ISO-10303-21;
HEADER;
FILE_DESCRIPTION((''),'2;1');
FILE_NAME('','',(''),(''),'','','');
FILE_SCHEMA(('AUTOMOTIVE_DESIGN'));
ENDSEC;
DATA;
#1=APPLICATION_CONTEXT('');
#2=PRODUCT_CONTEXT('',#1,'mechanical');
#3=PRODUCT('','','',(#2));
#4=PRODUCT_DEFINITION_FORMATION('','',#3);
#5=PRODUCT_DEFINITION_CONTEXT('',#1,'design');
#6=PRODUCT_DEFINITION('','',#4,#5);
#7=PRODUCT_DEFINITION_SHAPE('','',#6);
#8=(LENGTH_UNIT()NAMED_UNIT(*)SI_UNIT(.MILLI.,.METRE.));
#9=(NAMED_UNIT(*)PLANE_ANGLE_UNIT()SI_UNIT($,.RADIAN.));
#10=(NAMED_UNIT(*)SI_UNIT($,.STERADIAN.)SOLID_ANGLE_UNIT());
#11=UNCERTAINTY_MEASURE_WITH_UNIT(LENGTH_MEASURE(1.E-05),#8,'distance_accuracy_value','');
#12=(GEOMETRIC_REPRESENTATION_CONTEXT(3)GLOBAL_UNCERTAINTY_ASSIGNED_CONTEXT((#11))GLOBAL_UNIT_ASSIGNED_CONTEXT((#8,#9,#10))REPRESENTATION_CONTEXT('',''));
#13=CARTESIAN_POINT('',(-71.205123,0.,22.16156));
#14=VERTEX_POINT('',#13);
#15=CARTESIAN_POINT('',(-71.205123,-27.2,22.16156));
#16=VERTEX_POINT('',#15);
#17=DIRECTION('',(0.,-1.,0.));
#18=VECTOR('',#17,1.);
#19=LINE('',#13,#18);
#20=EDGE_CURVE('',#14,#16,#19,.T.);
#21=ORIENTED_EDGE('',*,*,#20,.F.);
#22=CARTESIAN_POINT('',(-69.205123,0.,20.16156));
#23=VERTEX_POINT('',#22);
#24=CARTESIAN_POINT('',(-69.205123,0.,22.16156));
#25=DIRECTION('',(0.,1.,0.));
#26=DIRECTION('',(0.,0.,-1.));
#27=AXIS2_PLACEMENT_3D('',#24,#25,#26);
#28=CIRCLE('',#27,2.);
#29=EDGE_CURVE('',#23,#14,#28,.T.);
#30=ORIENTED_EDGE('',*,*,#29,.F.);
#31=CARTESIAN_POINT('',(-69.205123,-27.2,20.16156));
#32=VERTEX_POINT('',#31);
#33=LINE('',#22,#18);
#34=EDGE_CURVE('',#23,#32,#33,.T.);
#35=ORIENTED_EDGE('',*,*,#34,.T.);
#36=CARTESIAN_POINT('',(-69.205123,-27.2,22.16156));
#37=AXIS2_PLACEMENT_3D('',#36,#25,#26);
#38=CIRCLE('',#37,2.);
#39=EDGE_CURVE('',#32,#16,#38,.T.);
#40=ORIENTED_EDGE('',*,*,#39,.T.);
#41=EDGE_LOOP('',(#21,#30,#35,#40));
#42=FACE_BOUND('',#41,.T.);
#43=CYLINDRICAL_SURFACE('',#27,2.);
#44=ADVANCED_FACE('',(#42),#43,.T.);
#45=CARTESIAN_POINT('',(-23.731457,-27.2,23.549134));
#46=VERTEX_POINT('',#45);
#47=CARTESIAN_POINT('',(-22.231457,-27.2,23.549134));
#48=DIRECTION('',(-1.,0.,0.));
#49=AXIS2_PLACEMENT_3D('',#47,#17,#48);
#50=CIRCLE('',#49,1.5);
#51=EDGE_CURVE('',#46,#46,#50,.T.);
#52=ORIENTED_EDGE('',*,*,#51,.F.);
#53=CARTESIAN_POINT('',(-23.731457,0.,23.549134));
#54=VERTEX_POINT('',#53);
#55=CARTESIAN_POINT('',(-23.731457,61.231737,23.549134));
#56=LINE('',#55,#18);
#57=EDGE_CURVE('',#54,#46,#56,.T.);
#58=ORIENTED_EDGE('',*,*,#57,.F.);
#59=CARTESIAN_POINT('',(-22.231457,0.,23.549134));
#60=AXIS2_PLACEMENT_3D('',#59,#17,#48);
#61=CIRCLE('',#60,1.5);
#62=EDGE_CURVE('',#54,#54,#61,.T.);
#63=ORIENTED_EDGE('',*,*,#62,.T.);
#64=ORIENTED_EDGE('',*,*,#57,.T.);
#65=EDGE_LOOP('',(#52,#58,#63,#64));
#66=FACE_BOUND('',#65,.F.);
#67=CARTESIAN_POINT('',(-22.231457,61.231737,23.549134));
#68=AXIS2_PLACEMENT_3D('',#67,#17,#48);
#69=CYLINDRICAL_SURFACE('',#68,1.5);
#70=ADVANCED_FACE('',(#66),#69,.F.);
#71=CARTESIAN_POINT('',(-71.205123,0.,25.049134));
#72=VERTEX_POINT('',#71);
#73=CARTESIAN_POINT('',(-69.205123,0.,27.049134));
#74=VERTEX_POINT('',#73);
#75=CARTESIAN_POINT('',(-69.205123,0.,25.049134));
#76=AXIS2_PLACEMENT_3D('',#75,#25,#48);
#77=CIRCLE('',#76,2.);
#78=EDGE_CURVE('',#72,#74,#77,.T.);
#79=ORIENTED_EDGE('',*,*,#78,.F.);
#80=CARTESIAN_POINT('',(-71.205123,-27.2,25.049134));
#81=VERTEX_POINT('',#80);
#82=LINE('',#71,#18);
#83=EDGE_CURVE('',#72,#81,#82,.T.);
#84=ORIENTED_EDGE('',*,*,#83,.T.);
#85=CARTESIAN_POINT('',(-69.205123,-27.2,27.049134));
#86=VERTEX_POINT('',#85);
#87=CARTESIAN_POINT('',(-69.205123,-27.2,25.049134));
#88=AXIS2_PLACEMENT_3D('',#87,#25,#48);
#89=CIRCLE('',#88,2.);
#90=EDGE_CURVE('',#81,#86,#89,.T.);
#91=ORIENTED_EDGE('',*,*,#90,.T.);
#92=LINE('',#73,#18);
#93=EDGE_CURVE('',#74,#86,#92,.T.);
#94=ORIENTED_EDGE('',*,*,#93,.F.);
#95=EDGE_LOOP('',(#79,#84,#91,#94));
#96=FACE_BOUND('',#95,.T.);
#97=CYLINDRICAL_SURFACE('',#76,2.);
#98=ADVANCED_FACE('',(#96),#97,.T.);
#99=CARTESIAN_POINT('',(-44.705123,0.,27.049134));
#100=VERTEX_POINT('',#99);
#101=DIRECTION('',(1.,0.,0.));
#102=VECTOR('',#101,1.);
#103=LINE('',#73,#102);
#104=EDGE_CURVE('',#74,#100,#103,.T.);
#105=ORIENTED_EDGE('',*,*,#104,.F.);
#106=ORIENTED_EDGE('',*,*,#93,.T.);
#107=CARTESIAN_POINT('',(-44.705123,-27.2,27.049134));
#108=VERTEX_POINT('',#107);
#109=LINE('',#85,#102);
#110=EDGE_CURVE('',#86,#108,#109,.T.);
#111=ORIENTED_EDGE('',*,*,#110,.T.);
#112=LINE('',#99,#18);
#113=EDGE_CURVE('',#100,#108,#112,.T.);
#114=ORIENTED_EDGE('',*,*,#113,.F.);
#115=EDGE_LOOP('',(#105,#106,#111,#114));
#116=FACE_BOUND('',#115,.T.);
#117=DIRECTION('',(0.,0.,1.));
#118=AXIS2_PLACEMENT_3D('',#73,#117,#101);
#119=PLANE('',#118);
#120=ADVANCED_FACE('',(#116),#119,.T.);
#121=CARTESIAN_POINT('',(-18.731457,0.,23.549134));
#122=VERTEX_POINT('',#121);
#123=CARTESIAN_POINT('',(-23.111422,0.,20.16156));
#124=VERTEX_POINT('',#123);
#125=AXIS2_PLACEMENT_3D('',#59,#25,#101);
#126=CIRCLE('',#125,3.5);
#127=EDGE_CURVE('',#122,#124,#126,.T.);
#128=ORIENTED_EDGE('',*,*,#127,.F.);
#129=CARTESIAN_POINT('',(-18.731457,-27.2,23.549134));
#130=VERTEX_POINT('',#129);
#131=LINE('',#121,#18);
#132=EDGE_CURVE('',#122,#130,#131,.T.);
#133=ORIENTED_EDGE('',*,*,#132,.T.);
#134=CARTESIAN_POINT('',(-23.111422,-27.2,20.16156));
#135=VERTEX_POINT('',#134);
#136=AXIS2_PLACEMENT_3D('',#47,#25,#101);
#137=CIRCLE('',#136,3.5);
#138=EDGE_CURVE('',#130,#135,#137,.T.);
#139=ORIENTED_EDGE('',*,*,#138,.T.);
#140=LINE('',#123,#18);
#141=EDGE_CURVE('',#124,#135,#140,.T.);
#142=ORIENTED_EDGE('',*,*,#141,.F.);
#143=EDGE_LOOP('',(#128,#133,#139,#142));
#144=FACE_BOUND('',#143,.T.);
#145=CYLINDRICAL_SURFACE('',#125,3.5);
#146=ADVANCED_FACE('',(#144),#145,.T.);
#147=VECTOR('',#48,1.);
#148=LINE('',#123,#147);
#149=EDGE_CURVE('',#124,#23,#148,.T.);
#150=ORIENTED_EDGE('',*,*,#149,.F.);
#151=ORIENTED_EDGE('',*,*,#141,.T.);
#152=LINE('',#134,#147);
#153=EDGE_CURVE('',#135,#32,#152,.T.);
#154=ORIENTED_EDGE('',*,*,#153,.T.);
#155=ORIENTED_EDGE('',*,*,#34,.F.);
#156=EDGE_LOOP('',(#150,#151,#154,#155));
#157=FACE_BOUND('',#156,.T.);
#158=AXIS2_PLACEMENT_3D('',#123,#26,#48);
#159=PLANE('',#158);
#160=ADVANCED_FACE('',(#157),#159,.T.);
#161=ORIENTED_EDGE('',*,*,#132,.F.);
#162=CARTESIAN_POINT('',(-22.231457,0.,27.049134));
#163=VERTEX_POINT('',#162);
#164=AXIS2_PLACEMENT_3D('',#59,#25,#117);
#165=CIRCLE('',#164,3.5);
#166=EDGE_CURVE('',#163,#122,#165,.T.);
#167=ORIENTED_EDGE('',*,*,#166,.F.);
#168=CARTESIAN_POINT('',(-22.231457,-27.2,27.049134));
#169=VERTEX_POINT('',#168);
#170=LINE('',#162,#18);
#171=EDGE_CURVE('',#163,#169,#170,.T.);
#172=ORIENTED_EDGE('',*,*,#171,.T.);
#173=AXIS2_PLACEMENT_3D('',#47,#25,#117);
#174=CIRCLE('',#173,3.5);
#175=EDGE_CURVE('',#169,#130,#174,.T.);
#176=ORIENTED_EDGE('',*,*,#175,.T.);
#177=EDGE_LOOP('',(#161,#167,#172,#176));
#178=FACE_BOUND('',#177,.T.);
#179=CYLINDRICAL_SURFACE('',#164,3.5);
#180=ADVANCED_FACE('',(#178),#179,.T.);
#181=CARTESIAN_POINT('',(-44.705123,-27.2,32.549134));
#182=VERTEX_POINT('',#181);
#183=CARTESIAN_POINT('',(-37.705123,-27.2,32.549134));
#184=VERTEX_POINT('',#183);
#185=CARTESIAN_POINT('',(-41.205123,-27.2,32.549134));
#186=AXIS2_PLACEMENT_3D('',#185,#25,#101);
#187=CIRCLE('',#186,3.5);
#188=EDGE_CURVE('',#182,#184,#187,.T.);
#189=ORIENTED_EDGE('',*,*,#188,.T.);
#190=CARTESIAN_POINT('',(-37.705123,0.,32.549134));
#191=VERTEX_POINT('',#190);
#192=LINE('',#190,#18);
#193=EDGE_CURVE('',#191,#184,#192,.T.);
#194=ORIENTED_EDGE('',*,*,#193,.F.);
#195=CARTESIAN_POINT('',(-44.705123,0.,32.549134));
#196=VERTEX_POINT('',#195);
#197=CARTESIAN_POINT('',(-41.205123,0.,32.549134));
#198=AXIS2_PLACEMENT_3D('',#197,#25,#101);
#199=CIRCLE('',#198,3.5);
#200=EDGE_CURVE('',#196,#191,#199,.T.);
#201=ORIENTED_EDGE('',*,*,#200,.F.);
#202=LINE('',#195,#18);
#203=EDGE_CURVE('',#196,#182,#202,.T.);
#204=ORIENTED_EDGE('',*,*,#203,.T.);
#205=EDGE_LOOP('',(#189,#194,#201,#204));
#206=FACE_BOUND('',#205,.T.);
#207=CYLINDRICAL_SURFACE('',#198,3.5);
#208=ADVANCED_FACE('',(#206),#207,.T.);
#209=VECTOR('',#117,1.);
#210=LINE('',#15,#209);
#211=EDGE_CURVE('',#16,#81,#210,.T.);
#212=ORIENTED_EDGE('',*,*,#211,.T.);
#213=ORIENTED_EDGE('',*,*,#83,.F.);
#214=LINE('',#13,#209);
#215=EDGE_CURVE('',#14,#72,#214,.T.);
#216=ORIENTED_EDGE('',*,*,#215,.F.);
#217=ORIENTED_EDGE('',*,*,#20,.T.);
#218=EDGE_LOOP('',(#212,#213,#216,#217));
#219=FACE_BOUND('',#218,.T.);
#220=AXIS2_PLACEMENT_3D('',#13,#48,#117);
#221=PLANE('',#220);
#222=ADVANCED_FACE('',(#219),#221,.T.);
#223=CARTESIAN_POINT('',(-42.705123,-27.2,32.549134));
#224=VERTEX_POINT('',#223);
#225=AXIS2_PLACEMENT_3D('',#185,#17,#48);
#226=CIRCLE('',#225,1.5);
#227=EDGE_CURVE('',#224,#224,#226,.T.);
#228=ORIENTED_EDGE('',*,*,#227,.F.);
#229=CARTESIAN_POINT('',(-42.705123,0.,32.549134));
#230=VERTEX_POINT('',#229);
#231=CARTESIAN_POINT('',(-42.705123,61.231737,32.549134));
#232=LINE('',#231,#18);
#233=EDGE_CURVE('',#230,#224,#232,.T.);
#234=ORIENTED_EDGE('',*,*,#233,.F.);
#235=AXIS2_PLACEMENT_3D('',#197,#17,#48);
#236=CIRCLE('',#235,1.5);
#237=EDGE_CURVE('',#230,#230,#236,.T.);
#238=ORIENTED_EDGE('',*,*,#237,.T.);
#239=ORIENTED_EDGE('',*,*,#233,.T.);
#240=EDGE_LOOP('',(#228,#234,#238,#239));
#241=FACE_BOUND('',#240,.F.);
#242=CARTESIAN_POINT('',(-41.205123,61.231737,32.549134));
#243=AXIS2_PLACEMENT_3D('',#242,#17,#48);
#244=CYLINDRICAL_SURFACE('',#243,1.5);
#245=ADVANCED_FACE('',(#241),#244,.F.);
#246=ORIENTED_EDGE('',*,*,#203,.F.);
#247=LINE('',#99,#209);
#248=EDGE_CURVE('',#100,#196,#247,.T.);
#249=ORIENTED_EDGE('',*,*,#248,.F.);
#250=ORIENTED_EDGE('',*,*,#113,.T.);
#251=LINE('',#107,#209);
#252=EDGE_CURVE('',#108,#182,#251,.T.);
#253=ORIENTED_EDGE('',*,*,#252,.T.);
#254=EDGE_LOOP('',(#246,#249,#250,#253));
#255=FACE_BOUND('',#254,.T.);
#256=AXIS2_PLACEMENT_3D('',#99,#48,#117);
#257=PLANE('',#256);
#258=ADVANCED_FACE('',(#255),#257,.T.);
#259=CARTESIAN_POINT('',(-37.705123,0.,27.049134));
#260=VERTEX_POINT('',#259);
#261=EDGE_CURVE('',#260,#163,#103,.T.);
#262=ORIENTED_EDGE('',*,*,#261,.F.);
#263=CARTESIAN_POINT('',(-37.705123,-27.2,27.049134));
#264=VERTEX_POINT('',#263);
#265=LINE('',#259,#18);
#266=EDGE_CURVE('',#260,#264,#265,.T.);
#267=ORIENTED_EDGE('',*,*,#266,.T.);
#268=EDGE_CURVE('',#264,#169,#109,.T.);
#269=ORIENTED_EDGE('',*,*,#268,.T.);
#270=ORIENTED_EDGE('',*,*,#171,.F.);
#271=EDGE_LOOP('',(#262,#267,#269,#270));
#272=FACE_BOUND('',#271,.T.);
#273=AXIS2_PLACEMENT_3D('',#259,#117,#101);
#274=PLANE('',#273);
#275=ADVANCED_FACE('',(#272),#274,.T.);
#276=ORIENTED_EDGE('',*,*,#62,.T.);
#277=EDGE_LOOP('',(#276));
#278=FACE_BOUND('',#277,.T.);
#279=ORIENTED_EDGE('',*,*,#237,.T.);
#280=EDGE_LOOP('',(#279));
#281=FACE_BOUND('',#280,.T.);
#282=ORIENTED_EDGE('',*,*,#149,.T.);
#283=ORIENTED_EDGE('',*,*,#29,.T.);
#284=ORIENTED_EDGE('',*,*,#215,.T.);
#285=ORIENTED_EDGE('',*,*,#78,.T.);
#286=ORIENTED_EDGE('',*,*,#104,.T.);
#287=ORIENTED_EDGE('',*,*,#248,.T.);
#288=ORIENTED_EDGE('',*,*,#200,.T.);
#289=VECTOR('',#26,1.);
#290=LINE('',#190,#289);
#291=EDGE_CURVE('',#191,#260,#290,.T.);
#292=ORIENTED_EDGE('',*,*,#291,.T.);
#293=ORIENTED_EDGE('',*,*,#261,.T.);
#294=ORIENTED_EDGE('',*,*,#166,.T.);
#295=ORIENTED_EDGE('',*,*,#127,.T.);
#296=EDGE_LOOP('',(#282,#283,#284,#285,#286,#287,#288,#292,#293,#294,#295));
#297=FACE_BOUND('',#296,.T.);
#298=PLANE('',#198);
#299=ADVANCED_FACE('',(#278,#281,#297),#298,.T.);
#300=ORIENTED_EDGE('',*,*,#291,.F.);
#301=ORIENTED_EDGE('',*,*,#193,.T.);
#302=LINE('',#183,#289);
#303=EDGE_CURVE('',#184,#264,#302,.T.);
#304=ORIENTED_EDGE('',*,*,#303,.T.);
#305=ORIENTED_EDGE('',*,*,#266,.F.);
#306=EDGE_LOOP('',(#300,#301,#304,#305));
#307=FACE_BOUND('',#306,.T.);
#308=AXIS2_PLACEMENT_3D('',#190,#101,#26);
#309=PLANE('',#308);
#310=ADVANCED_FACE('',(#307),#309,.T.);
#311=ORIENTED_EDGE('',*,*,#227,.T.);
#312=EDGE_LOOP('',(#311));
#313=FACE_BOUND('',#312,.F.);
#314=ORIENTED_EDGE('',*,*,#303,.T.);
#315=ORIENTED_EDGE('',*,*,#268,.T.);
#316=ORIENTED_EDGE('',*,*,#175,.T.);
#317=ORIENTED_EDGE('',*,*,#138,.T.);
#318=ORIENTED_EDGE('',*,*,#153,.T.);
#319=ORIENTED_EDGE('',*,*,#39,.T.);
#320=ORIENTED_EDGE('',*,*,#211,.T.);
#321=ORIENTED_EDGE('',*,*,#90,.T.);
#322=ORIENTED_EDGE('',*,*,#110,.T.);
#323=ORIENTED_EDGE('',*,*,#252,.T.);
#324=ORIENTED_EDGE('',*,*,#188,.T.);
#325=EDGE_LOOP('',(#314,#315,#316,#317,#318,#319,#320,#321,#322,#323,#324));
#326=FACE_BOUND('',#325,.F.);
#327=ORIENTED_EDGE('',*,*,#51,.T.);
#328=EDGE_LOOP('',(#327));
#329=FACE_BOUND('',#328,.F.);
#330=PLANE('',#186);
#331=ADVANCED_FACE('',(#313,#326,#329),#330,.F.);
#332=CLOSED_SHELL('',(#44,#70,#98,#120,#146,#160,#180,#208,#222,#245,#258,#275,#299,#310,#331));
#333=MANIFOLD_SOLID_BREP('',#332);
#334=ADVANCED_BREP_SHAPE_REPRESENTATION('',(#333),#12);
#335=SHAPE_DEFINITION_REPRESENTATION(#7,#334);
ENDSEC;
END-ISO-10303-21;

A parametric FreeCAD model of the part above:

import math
import FreeCAD as App
import Part
import Sketcher

doc = App.newDocument("Part")
params = doc.addObject("Spreadsheet::Sheet", "Params")
for row, (alias, value) in enumerate([
    ("sketch1_radius", "2 mm"),
    ("sketch1_radius2", "3.5 mm"),
    ("sketch1_width", "24.5 mm"),
    ("sketch1_height", "5.5 mm"),
    ("pad1_length", "27.2 mm"),
    ("sketch2_diameter", "3 mm"),
    ("hole_diameter", "3 mm"),
    ("sketch3_diameter", "3 mm"),
    ("hole2_diameter", "3 mm"),
], start=1):
    params.set(f"A{row}", alias)
    params.set(f"B{row}", "=" + value)
    params.setAlias(f"B{row}", alias)

body = doc.addObject("PartDesign::Body", "Body")

sketch1 = doc.addObject("Sketcher::SketchObject", "Sketch")
body.addObject(sketch1)
sketch1.AttachmentSupport = (doc.XZ_Plane, [""])
sketch1.MapMode = "FlatFace"
sketch1.addGeometry(Part.ArcOfCircle(Part.Circle(App.Vector(-41.2, 7.8, 0), App.Vector(0, 0, 1), 3.5), math.radians(180), math.radians(360)), False)
sketch1.addGeometry(Part.LineSegment(App.Vector(-37.7, 7.8, 0), App.Vector(-37.7, 13.3, 0)), False)
sketch1.addGeometry(Part.LineSegment(App.Vector(-37.7, 13.3, 0), App.Vector(-22.2, 13.3, 0)), False)
sketch1.addGeometry(Part.ArcOfCircle(Part.Circle(App.Vector(-22.2, 16.8, 0), App.Vector(0, 0, 1), 3.5), math.radians(-90), math.radians(0)), False)
sketch1.addGeometry(Part.ArcOfCircle(Part.Circle(App.Vector(-22.2, 16.8, 0), App.Vector(0, 0, 1), 3.5), math.radians(0), math.radians(105)), False)
sketch1.addGeometry(Part.LineSegment(App.Vector(-23.1, 20.2, 0), App.Vector(-69.2, 20.2, 0)), False)
sketch1.addGeometry(Part.ArcOfCircle(Part.Circle(App.Vector(-69.2, 18.2, 0), App.Vector(0, 0, 1), 2), math.radians(90), math.radians(180)), False)
sketch1.addGeometry(Part.LineSegment(App.Vector(-71.2, 18.2, 0), App.Vector(-71.2, 15.3, 0)), False)
sketch1.addGeometry(Part.ArcOfCircle(Part.Circle(App.Vector(-69.2, 15.3, 0), App.Vector(0, 0, 1), 2), math.radians(180), math.radians(270)), False)
sketch1.addGeometry(Part.LineSegment(App.Vector(-69.2, 13.3, 0), App.Vector(-44.7, 13.3, 0)), False)
sketch1.addGeometry(Part.LineSegment(App.Vector(-44.7, 13.3, 0), App.Vector(-44.7, 7.8, 0)), False)
sketch1.addConstraint(Sketcher.Constraint("Tangent", 0, 2, 1, 1))
sketch1.addConstraint(Sketcher.Constraint("Coincident", 1, 2, 2, 1))
sketch1.addConstraint(Sketcher.Constraint("Tangent", 2, 2, 3, 1))
sketch1.addConstraint(Sketcher.Constraint("Tangent", 3, 2, 4, 1))
sketch1.addConstraint(Sketcher.Constraint("Coincident", 4, 2, 5, 1))
sketch1.addConstraint(Sketcher.Constraint("Tangent", 5, 2, 6, 1))
sketch1.addConstraint(Sketcher.Constraint("Tangent", 6, 2, 7, 1))
sketch1.addConstraint(Sketcher.Constraint("Tangent", 7, 2, 8, 1))
sketch1.addConstraint(Sketcher.Constraint("Tangent", 8, 2, 9, 1))
sketch1.addConstraint(Sketcher.Constraint("Coincident", 9, 2, 10, 1))
sketch1.addConstraint(Sketcher.Constraint("Tangent", 10, 2, 0, 1))
sketch1.addConstraint(Sketcher.Constraint("Vertical", 1))
sketch1.addConstraint(Sketcher.Constraint("Horizontal", 2))
sketch1.addConstraint(Sketcher.Constraint("Horizontal", 5))
sketch1.addConstraint(Sketcher.Constraint("Vertical", 7))
sketch1.addConstraint(Sketcher.Constraint("Horizontal", 9))
sketch1.addConstraint(Sketcher.Constraint("Vertical", 10))
sketch1.addConstraint(Sketcher.Constraint("Equal", 0, 3))
sketch1.addConstraint(Sketcher.Constraint("Equal", 3, 4))
sketch1.addConstraint(Sketcher.Constraint("Equal", 6, 8))
sketch1.addConstraint(Sketcher.Constraint("Horizontal", 4, 3, 3, 2))
sketch1.addConstraint(Sketcher.Constraint("Horizontal", 2, 2, 8, 2))
sketch1.addConstraint(Sketcher.Constraint("Radius", 6, 2.0))
sketch1.addConstraint(Sketcher.Constraint("Radius", 0, 3.5))
sketch1.addConstraint(Sketcher.Constraint("DistanceX", 9, 1, 9, 2, 24.5))
sketch1.addConstraint(Sketcher.Constraint("DistanceY", 1, 1, 1, 2, 5.5))
sketch1.addConstraint(Sketcher.Constraint("DistanceX", 5, 2, 5, 1, 46.093701))
sketch1.addConstraint(Sketcher.Constraint("DistanceX", 2, 1, 2, 2, 15.473666))
sketch1.addConstraint(Sketcher.Constraint("DistanceY", -1, 1, 6, 3, 18.16156))
sketch1.addConstraint(Sketcher.Constraint("DistanceX", 4, 2, -1, 1, 23.111422))
sketch1.setExpression("Constraints[22]", "Params.sketch1_radius")
sketch1.setExpression("Constraints[23]", "Params.sketch1_radius2")
sketch1.setExpression("Constraints[24]", "Params.sketch1_width")
sketch1.setExpression("Constraints[25]", "Params.sketch1_height")
pad1 = doc.addObject("PartDesign::Pad", "Pad")
body.addObject(pad1)
pad1.Profile = sketch1
pad1.setExpression("Length", "Params.pad1_length")
pad1.Reversed = True

sketch2 = doc.addObject("Sketcher::SketchObject", "Sketch001")
body.addObject(sketch2)
sketch2.AttachmentSupport = (doc.XZ_Plane, [""])
sketch2.MapMode = "FlatFace"
sketch2.addGeometry(Part.Circle(App.Vector(-41.2, 7.8, 0), App.Vector(0, 0, 1), 1.5), False)
sketch2.addConstraint(Sketcher.Constraint("Diameter", 0, 3.0))
sketch2.addConstraint(Sketcher.Constraint("DistanceX", 0, 3, -1, 1, 41.205123))
sketch2.addConstraint(Sketcher.Constraint("DistanceY", -1, 1, 0, 3, 7.773985))
sketch2.setExpression("Constraints[0]", "Params.sketch2_diameter")
doc.recompute()
hole = doc.addObject("PartDesign::Hole", "Hole")
body.addObject(hole)
hole.Profile = sketch2
hole.ThreadType = "None"
hole.setExpression("Diameter", "Params.hole_diameter")
hole.DepthType = "ThroughAll"

sketch3 = doc.addObject("Sketcher::SketchObject", "Sketch002")
body.addObject(sketch3)
sketch3.AttachmentSupport = (doc.XZ_Plane, [""])
sketch3.MapMode = "FlatFace"
sketch3.addGeometry(Part.Circle(App.Vector(-22.2, 16.8, 0), App.Vector(0, 0, 1), 1.5), False)
sketch3.addConstraint(Sketcher.Constraint("Diameter", 0, 3.0))
sketch3.addConstraint(Sketcher.Constraint("DistanceX", 0, 3, -1, 1, 22.231457))
sketch3.addConstraint(Sketcher.Constraint("DistanceY", -1, 1, 0, 3, 16.773985))
sketch3.setExpression("Constraints[0]", "Params.sketch3_diameter")
doc.recompute()
hole2 = doc.addObject("PartDesign::Hole", "Hole001")
body.addObject(hole2)
hole2.Profile = sketch3
hole2.ThreadType = "None"
hole2.setExpression("Diameter", "Params.hole2_diameter")
hole2.DepthType = "ThroughAll"
body2 = doc.addObject("PartDesign::Body", "Body001")
doc.recompute()

body.Placement = App.Placement(App.Vector(0, 0, 40.32312), App.Rotation(App.Vector(-1, 0, 0), 180))
boolean = doc.addObject("PartDesign::Boolean", "Boolean")
body2.addObject(boolean)
boolean.Type = "Fuse"
boolean.addObjects([body])

doc.recompute()
